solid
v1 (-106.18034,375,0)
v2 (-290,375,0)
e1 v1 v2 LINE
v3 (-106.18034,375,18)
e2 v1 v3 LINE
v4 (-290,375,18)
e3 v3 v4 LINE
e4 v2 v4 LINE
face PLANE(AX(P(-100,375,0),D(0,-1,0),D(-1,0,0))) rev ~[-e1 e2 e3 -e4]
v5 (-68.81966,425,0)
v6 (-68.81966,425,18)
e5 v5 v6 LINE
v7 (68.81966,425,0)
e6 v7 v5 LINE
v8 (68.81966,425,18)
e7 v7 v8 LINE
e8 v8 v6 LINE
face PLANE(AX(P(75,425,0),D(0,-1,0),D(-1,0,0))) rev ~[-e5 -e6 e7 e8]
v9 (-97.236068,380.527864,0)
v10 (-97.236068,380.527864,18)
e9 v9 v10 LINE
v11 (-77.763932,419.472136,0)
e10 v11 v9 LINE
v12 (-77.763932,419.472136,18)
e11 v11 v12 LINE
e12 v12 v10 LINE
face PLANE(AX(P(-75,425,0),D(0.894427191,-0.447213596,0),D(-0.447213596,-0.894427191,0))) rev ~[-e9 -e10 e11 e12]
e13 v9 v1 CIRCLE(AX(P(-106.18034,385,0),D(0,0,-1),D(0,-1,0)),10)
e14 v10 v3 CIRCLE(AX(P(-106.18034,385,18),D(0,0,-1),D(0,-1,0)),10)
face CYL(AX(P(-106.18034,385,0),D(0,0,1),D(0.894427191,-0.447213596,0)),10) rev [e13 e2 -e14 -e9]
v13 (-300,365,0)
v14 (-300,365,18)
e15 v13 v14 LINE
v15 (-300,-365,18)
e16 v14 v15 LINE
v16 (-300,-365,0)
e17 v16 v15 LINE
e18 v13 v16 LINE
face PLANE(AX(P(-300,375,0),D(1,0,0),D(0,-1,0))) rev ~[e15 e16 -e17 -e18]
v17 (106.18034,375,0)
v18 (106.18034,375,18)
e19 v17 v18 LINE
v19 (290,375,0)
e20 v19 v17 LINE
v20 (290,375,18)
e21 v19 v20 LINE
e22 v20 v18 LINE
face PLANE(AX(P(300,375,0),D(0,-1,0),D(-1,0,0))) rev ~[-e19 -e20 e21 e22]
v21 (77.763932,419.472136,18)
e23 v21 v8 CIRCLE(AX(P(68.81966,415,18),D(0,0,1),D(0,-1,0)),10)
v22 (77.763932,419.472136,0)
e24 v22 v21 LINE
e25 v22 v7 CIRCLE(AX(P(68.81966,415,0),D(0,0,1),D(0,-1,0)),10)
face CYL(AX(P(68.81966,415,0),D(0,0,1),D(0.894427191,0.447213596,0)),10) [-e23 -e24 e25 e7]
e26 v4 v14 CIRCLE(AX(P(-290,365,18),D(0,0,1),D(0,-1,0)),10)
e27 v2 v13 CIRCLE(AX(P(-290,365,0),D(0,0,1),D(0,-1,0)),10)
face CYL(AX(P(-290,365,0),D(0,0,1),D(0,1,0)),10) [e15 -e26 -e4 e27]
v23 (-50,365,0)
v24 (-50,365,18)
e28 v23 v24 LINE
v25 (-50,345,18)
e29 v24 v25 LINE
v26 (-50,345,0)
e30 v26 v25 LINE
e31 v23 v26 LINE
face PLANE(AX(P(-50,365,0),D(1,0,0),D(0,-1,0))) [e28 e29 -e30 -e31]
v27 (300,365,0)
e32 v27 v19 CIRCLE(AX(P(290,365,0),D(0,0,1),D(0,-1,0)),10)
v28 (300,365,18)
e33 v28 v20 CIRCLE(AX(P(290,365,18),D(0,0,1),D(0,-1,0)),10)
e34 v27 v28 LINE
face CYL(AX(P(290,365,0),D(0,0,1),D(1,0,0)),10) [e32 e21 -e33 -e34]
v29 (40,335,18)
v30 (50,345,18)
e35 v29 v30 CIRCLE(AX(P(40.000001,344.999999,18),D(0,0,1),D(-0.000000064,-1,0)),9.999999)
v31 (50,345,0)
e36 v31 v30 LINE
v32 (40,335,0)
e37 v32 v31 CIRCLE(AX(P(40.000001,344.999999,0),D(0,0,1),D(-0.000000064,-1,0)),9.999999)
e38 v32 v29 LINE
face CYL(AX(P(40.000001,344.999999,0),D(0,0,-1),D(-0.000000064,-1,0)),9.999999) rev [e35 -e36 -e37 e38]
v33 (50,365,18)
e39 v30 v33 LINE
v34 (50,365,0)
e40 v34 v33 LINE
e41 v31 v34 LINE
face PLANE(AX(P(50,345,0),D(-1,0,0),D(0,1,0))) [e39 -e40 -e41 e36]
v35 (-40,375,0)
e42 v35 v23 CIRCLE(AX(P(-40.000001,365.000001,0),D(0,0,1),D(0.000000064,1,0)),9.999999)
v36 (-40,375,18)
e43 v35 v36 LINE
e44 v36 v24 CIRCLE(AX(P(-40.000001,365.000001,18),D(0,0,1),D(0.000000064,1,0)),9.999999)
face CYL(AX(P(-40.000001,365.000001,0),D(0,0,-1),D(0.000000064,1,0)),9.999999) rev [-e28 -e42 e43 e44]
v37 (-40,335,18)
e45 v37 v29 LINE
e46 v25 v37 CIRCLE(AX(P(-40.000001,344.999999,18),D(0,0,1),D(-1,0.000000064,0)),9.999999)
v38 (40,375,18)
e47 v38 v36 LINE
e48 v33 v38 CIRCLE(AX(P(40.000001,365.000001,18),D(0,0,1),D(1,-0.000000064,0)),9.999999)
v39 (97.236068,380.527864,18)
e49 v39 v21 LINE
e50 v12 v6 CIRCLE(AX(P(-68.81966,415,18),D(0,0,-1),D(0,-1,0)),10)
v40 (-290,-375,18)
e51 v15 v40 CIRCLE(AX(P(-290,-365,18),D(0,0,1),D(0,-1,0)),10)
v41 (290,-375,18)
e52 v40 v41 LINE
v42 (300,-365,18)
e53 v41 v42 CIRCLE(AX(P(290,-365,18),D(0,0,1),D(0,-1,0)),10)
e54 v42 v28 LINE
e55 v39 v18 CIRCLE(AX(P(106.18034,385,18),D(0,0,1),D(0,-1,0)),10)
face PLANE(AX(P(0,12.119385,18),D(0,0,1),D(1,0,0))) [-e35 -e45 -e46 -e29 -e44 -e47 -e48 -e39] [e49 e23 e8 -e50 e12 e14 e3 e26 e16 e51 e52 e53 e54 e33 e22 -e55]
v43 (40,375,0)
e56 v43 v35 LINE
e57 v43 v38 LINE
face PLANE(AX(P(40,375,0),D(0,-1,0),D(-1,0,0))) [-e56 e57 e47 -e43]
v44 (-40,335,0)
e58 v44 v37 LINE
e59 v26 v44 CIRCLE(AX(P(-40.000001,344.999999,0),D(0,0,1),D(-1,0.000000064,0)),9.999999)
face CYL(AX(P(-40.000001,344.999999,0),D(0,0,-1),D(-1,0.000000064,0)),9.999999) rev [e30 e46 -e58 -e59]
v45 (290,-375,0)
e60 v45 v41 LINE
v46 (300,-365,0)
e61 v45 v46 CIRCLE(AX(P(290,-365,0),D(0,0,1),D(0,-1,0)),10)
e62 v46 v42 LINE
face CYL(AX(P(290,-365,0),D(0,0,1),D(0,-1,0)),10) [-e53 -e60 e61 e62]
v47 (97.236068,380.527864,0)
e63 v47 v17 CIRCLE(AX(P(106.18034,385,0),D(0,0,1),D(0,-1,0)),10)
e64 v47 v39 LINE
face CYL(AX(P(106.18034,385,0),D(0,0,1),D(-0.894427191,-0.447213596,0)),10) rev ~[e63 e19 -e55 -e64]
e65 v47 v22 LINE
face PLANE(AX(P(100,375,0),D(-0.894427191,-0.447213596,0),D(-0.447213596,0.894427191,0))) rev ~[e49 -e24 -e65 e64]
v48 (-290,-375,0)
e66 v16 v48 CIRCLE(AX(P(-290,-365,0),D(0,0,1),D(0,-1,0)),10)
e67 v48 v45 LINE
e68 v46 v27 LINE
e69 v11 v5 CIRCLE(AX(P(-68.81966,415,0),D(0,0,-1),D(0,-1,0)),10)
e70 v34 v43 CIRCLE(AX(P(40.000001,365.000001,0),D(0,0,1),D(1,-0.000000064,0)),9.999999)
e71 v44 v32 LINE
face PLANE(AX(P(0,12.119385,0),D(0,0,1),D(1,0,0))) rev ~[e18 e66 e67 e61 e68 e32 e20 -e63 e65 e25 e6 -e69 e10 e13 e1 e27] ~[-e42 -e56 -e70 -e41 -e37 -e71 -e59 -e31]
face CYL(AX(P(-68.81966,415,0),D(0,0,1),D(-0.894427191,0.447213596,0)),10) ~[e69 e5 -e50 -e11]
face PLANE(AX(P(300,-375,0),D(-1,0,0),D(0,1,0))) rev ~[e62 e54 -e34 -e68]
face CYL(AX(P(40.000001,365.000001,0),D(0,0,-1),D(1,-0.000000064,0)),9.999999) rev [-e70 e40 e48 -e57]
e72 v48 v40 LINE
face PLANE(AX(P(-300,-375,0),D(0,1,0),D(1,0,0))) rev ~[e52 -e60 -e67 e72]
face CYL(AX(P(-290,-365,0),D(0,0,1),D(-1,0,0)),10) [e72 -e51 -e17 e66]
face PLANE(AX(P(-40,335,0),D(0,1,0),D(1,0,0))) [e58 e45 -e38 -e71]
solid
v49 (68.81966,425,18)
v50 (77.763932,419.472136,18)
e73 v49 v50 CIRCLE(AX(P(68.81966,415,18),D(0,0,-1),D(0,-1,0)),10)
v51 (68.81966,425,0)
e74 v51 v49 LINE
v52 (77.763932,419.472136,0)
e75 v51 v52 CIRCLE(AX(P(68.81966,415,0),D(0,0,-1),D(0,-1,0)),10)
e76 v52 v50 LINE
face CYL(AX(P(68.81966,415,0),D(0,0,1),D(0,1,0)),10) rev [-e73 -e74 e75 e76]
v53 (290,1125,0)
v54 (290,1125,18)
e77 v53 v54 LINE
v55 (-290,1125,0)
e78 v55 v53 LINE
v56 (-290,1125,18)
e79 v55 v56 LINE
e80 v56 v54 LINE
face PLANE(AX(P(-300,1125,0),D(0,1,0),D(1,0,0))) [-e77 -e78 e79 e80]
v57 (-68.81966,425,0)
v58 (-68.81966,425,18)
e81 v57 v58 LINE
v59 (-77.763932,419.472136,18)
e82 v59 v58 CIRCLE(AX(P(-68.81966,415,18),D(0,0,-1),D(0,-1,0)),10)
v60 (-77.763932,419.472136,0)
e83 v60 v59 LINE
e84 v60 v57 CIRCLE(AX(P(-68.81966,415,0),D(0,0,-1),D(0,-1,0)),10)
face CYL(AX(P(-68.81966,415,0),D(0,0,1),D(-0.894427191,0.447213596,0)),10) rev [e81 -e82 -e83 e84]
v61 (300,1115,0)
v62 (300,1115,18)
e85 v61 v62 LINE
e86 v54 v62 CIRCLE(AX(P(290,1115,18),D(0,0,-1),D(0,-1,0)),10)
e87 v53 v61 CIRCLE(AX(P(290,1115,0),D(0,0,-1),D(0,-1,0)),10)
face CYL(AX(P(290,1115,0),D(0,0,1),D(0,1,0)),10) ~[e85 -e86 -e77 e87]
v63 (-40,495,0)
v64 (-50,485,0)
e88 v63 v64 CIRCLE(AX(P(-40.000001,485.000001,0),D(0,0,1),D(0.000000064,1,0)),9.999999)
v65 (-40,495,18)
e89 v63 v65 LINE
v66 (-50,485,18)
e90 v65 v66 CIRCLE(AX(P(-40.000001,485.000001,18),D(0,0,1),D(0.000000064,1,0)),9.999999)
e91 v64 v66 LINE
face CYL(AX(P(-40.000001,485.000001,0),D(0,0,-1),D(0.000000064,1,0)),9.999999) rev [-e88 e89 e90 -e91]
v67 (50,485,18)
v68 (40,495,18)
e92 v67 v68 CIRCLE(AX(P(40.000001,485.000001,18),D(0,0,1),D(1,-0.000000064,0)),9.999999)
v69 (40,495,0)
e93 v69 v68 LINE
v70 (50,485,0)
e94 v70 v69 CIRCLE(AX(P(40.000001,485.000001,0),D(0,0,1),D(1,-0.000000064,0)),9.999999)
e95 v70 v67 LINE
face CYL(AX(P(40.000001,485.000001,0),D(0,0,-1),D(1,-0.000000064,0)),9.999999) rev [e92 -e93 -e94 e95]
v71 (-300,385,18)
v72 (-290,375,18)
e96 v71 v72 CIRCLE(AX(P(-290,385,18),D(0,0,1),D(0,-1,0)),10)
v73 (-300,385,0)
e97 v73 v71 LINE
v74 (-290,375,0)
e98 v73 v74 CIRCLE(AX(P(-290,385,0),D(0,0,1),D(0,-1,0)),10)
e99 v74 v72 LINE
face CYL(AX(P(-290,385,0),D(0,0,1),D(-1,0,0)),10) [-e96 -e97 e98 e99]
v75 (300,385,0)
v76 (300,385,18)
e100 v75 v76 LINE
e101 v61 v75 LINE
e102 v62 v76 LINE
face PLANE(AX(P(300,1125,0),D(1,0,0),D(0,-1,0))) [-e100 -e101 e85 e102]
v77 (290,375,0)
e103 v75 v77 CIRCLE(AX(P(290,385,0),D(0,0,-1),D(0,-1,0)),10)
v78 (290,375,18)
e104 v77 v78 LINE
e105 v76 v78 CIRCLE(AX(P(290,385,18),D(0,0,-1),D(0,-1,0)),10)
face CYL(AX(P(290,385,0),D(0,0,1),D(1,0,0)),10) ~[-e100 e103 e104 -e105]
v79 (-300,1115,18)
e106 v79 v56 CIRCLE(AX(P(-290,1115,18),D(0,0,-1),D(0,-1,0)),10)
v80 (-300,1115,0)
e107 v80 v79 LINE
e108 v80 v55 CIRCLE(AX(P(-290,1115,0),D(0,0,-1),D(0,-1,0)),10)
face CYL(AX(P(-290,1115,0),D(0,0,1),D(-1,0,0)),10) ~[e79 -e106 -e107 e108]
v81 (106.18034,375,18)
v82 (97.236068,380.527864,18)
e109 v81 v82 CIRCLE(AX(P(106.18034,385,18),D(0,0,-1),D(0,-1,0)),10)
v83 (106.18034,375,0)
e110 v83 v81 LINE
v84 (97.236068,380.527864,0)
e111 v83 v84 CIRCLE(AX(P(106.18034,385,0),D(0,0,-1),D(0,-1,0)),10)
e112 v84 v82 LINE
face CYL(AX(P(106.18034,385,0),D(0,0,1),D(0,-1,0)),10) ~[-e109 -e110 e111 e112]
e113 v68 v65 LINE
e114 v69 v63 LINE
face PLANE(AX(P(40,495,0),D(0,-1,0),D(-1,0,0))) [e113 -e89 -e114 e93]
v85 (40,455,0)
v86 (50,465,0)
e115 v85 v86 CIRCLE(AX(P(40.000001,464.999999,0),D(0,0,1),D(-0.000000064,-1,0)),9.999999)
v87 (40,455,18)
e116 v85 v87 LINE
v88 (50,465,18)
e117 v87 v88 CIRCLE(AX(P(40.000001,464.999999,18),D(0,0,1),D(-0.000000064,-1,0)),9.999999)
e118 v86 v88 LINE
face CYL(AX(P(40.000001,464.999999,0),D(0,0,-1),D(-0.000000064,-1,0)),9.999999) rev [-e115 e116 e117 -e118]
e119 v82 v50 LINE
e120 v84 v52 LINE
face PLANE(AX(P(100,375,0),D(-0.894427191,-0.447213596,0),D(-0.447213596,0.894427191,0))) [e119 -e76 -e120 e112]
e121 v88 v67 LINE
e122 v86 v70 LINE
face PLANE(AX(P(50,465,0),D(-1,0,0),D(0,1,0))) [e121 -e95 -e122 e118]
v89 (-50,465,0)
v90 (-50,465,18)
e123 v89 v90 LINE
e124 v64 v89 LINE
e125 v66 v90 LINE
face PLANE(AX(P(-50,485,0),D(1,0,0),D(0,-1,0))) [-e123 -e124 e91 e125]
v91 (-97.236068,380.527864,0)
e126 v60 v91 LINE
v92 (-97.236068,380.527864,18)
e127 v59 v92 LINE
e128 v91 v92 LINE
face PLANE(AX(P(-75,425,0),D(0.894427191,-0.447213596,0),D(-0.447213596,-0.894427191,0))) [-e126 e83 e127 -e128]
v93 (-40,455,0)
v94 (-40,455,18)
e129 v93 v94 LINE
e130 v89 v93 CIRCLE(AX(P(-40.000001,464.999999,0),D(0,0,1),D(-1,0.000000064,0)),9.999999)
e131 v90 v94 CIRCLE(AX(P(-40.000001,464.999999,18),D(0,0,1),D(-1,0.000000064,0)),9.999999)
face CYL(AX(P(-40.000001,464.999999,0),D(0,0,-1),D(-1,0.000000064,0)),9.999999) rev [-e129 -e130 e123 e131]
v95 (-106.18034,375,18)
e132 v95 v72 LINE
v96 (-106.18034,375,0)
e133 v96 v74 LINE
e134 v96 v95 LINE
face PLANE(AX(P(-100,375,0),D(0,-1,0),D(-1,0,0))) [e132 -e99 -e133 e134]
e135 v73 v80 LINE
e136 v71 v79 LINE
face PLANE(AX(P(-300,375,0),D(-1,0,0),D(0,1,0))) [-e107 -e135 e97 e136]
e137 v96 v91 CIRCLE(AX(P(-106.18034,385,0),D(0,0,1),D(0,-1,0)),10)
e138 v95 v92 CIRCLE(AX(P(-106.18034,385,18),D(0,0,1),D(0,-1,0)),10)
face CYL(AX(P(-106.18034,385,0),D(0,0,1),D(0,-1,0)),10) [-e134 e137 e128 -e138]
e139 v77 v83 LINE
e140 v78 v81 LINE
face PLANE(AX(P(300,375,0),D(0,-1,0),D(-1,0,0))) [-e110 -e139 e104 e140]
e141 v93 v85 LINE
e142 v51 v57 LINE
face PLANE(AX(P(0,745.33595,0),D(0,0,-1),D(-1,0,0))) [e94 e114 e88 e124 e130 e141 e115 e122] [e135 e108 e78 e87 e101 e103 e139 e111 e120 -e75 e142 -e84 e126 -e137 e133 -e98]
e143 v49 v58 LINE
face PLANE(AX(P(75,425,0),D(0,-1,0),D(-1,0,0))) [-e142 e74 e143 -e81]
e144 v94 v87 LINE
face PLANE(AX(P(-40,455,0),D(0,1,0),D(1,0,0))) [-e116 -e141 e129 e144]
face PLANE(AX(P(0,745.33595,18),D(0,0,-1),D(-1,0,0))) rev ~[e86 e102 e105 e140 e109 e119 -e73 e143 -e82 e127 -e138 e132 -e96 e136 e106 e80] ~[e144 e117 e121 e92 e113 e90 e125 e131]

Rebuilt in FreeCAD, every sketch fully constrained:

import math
import FreeCAD as App
import Part
import Sketcher


def edges_at(feature, points):
    """Names of the edges that pass closest to the given points."""
    edges = feature.Shape.Edges
    near = lambda p: min(range(len(edges)), key=lambda i: edges[i].distToShape(Part.Vertex(*p))[0])
    return sorted({f"Edge{near(p) + 1}" for p in points})

doc = App.newDocument("Part")
body = doc.addObject("PartDesign::Body", "Body")

# Sketch on XY plane
sketch1 = body.newObject("Sketcher::SketchObject", "Sketch")
sketch1.AttachmentSupport = (doc.getObject("XY_Plane"), [""])
sketch1.MapMode = "FlatFace"
sketch1.addGeometry([
    Part.LineSegment(App.Vector(-300, -375, 0), App.Vector(300, -375, 0)),  # 0
    Part.LineSegment(App.Vector(300, -375, 0), App.Vector(300, 375, 0)),  # 1
    Part.LineSegment(App.Vector(300, 375, 0), App.Vector(100, 375, 0)),  # 2
    Part.LineSegment(App.Vector(100, 375, 0), App.Vector(75, 425, 0)),  # 3
    Part.LineSegment(App.Vector(75, 425, 0), App.Vector(-75, 425, 0)),  # 4
    Part.LineSegment(App.Vector(-75, 425, 0), App.Vector(-100, 375, 0)),  # 5
    Part.LineSegment(App.Vector(-100, 375, 0), App.Vector(-300, 375, 0)),  # 6
    Part.LineSegment(App.Vector(-300, 375, 0), App.Vector(-300, -375, 0)),  # 7
    Part.LineSegment(App.Vector(-50, 345, 0), App.Vector(-50, 365, 0)),  # 8
    Part.ArcOfCircle(Part.Circle(App.Vector(-40, 365, 0), App.Vector(0, 0, 1), 10), math.radians(90), math.radians(180)),  # 9
    Part.LineSegment(App.Vector(-40, 375, 0), App.Vector(40, 375, 0)),  # 10
    Part.ArcOfCircle(Part.Circle(App.Vector(40, 365, 0), App.Vector(0, 0, 1), 10), math.radians(0), math.radians(90)),  # 11
    Part.LineSegment(App.Vector(50, 365, 0), App.Vector(50, 345, 0)),  # 12
    Part.ArcOfCircle(Part.Circle(App.Vector(40, 345, 0), App.Vector(0, 0, 1), 10), math.radians(-90), math.radians(0)),  # 13
    Part.LineSegment(App.Vector(40, 335, 0), App.Vector(-40, 335, 0)),  # 14
    Part.ArcOfCircle(Part.Circle(App.Vector(-40, 345, 0), App.Vector(0, 0, 1), 10), math.radians(180), math.radians(270)),  # 15
], False)
sketch1.addConstraint([
    Sketcher.Constraint("Coincident", 0, 2, 1, 1),
    Sketcher.Constraint("Coincident", 1, 2, 2, 1),
    Sketcher.Constraint("Coincident", 2, 2, 3, 1),
    Sketcher.Constraint("Coincident", 3, 2, 4, 1),
    Sketcher.Constraint("Coincident", 4, 2, 5, 1),
    Sketcher.Constraint("Coincident", 5, 2, 6, 1),
    Sketcher.Constraint("Coincident", 6, 2, 7, 1),
    Sketcher.Constraint("Coincident", 7, 2, 0, 1),
    Sketcher.Constraint("Tangent", 8, 2, 9, 2),
    Sketcher.Constraint("Tangent", 9, 1, 10, 1),
    Sketcher.Constraint("Tangent", 10, 2, 11, 2),
    Sketcher.Constraint("Tangent", 11, 1, 12, 1),
    Sketcher.Constraint("Tangent", 12, 2, 13, 2),
    Sketcher.Constraint("Tangent", 13, 1, 14, 1),
    Sketcher.Constraint("Tangent", 14, 2, 15, 2),
    Sketcher.Constraint("Tangent", 15, 1, 8, 1),
    Sketcher.Constraint("Horizontal", 0),
    Sketcher.Constraint("Vertical", 1),
    Sketcher.Constraint("Horizontal", 2),
    Sketcher.Constraint("Horizontal", 4),
    Sketcher.Constraint("Horizontal", 6),
    Sketcher.Constraint("Vertical", 7),
    Sketcher.Constraint("Vertical", 8),
    Sketcher.Constraint("Horizontal", 10),
    Sketcher.Constraint("Vertical", 12),
    Sketcher.Constraint("Horizontal", 14),
    Sketcher.Constraint("Equal", 9, 11),
    Sketcher.Constraint("Equal", 11, 13),
    Sketcher.Constraint("Equal", 13, 15),
    Sketcher.Constraint("Symmetric", 0, 2, 6, 2, -1, 1),
    Sketcher.Constraint("Symmetric", 2, 2, 5, 2, -2),
    Sketcher.Constraint("Horizontal", 6, 2, 9, 1),
    Sketcher.Constraint("Equal", 3, 5),
    Sketcher.Constraint("Radius", 9, 9.999999),
    Sketcher.Constraint("DistanceX", 0, 1, 0, 2, 600.0),
    Sketcher.Constraint("DistanceX", 2, 2, 2, 1, 200.0),
    Sketcher.Constraint("DistanceX", 4, 2, 4, 1, 150.0),
    Sketcher.Constraint("DistanceX", 10, 1, 10, 2, 80.0),
    Sketcher.Constraint("DistanceY", 1, 1, 1, 2, 750.0),
    Sketcher.Constraint("DistanceY", 8, 1, 8, 2, 20.0),
    Sketcher.Constraint("DistanceX", 9, 3, -1, 1, 40.000001),
    Sketcher.Constraint("DistanceY", -1, 1, 3, 2, 425.0),
])
pad1 = body.newObject("PartDesign::Pad", "Pad")
pad1.Profile = sketch1
pad1.Length = 18
doc.recompute()

fillet = body.newObject("PartDesign::Fillet", "Fillet")
fillet.Base = (pad1, edges_at(pad1, [(-75, 425, 9), (75, 425, 9)]))
fillet.Radius = 10
doc.recompute()

fillet2 = body.newObject("PartDesign::Fillet", "Fillet001")
fillet2.Base = (fillet, edges_at(fillet, [(-100, 375, 9), (100, 375, 9)]))
fillet2.Radius = 10
doc.recompute()

fillet3 = body.newObject("PartDesign::Fillet", "Fillet002")
fillet3.Base = (fillet2, edges_at(fillet2, [
    (300, 375, 9),
    (-300, 375, 9),
    (-300, -375, 9),
    (300, -375, 9),
]))
fillet3.Radius = 10
body2 = doc.addObject("PartDesign::Body", "Body001")

# Sketch on XY plane
sketch2 = body2.newObject("Sketcher::SketchObject", "Sketch001")
sketch2.AttachmentSupport = (doc.getObject("XY_Plane001"), [""])
sketch2.MapMode = "FlatFace"
sketch2.addGeometry([
    Part.LineSegment(App.Vector(-300, 1125, 0), App.Vector(-300, 375, 0)),  # 0
    Part.LineSegment(App.Vector(-300, 375, 0), App.Vector(-100, 375, 0)),  # 1
    Part.LineSegment(App.Vector(-100, 375, 0), App.Vector(-75, 425, 0)),  # 2
    Part.LineSegment(App.Vector(-75, 425, 0), App.Vector(75, 425, 0)),  # 3
    Part.LineSegment(App.Vector(75, 425, 0), App.Vector(100, 375, 0)),  # 4
    Part.LineSegment(App.Vector(100, 375, 0), App.Vector(300, 375, 0)),  # 5
    Part.LineSegment(App.Vector(300, 375, 0), App.Vector(300, 1125, 0)),  # 6
    Part.LineSegment(App.Vector(300, 1125, 0), App.Vector(-300, 1125, 0)),  # 7
    Part.ArcOfCircle(Part.Circle(App.Vector(-40, 485, 0), App.Vector(0, 0, 1), 10), math.radians(90), math.radians(180)),  # 8
    Part.LineSegment(App.Vector(-40, 495, 0), App.Vector(40, 495, 0)),  # 9
    Part.ArcOfCircle(Part.Circle(App.Vector(40, 485, 0), App.Vector(0, 0, 1), 10), math.radians(0), math.radians(90)),  # 10
    Part.LineSegment(App.Vector(50, 485, 0), App.Vector(50, 465, 0)),  # 11
    Part.ArcOfCircle(Part.Circle(App.Vector(40, 465, 0), App.Vector(0, 0, 1), 10), math.radians(-90), math.radians(0)),  # 12
    Part.LineSegment(App.Vector(40, 455, 0), App.Vector(-40, 455, 0)),  # 13
    Part.ArcOfCircle(Part.Circle(App.Vector(-40, 465, 0), App.Vector(0, 0, 1), 10), math.radians(180), math.radians(270)),  # 14
    Part.LineSegment(App.Vector(-50, 465, 0), App.Vector(-50, 485, 0)),  # 15
], False)
sketch2.addConstraint([
    Sketcher.Constraint("Coincident", 0, 2, 1, 1),
    Sketcher.Constraint("Coincident", 1, 2, 2, 1),
    Sketcher.Constraint("Coincident", 2, 2, 3, 1),
    Sketcher.Constraint("Coincident", 3, 2, 4, 1),
    Sketcher.Constraint("Coincident", 4, 2, 5, 1),
    Sketcher.Constraint("Coincident", 5, 2, 6, 1),
    Sketcher.Constraint("Coincident", 6, 2, 7, 1),
    Sketcher.Constraint("Coincident", 7, 2, 0, 1),
    Sketcher.Constraint("Tangent", 8, 1, 9, 1),
    Sketcher.Constraint("Tangent", 9, 2, 10, 2),
    Sketcher.Constraint("Tangent", 10, 1, 11, 1),
    Sketcher.Constraint("Tangent", 11, 2, 12, 2),
    Sketcher.Constraint("Tangent", 12, 1, 13, 1),
    Sketcher.Constraint("Tangent", 13, 2, 14, 2),
    Sketcher.Constraint("Tangent", 14, 1, 15, 1),
    Sketcher.Constraint("Tangent", 15, 2, 8, 2),
    Sketcher.Constraint("Vertical", 0),
    Sketcher.Constraint("Horizontal", 1),
    Sketcher.Constraint("Horizontal", 3),
    Sketcher.Constraint("Horizontal", 5),
    Sketcher.Constraint("Vertical", 6),
    Sketcher.Constraint("Horizontal", 7),
    Sketcher.Constraint("Horizontal", 9),
    Sketcher.Constraint("Vertical", 11),
    Sketcher.Constraint("Horizontal", 13),
    Sketcher.Constraint("Vertical", 15),
    Sketcher.Constraint("Equal", 8, 10),
    Sketcher.Constraint("Equal", 10, 12),
    Sketcher.Constraint("Equal", 12, 14),
    Sketcher.Constraint("Symmetric", 1, 2, 4, 2, -2),
    Sketcher.Constraint("Equal", 1, 5),
    Sketcher.Constraint("Equal", 2, 4),
    Sketcher.Constraint("Radius", 8, 9.999999),
    Sketcher.Constraint("DistanceX", 1, 1, 1, 2, 200.0),
    Sketcher.Constraint("DistanceX", 3, 1, 3, 2, 150.0),
    Sketcher.Constraint("DistanceX", 7, 2, 7, 1, 600.0),
    Sketcher.Constraint("DistanceX", 9, 1, 9, 2, 80.0),
    Sketcher.Constraint("DistanceY", 0, 2, 0, 1, 750.0),
    Sketcher.Constraint("DistanceY", 11, 2, 11, 1, 20.0),
    Sketcher.Constraint("DistanceX", 8, 3, -1, 1, 40.000001),
    Sketcher.Constraint("DistanceY", -1, 1, 8, 3, 485.000001),
    Sketcher.Constraint("DistanceY", -1, 1, 0, 2, 375.0),
    Sketcher.Constraint("DistanceY", -1, 1, 2, 2, 425.0),
])
pad2 = body2.newObject("PartDesign::Pad", "Pad001")
pad2.Profile = sketch2
pad2.Length = 18
doc.recompute()

fillet4 = body2.newObject("PartDesign::Fillet", "Fillet003")
fillet4.Base = (pad2, edges_at(pad2, [
    (-75, 425, 9),
    (-100, 375, 9),
    (75, 425, 9),
    (100, 375, 9),
    (300, 375, 9),
    (300, 1125, 9),
    (-300, 375, 9),
    (-300, 1125, 9),
]))
fillet4.Radius = 10

doc.recompute()
